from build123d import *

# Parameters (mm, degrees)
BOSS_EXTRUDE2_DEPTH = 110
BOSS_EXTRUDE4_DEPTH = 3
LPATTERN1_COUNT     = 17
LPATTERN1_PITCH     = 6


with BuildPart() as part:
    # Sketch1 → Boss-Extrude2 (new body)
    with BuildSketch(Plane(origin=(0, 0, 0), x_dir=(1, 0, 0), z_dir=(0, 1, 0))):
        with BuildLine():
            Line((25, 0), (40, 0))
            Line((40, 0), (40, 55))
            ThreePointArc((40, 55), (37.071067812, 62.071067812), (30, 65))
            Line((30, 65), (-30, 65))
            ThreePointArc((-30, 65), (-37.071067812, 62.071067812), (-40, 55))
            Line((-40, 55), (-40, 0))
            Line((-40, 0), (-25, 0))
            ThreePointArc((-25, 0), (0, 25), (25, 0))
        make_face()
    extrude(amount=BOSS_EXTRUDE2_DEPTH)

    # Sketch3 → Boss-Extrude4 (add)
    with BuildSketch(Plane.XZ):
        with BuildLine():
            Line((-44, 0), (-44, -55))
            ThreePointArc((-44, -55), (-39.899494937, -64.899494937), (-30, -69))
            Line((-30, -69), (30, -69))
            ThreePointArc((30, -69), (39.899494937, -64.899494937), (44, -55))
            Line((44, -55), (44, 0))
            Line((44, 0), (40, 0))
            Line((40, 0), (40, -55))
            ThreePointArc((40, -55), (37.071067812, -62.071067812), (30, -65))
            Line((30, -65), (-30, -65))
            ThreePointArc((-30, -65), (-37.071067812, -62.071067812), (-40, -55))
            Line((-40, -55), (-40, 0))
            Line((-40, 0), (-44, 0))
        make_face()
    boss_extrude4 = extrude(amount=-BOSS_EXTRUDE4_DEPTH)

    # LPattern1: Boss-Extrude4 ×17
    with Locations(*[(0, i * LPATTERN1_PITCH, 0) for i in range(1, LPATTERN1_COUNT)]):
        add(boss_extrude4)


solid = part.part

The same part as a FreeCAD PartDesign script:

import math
import FreeCAD as App
import Part
import Sketcher
Q = App.Units.Quantity

doc = App.newDocument("Part")
body = doc.addObject("PartDesign::Body", "Body")

# Sketch on XZ plane
sketch1 = body.newObject("Sketcher::SketchObject", "Sketch")
sketch1.AttachmentSupport = (doc.getObject("XZ_Plane"), [""])
sketch1.MapMode = "FlatFace"
sketch1.addGeometry([
    Part.LineSegment(App.Vector(25, 0, 0), App.Vector(40, 0, 0)),  # 0
    Part.LineSegment(App.Vector(40, 0, 0), App.Vector(40, -55, 0)),  # 1
    Part.ArcOfCircle(Part.Circle(App.Vector(30, -55, 0), App.Vector(0, 0, 1), 10), math.radians(-90), math.radians(0)),  # 2
    Part.LineSegment(App.Vector(30, -65, 0), App.Vector(-30, -65, 0)),  # 3
    Part.ArcOfCircle(Part.Circle(App.Vector(-30, -55, 0), App.Vector(0, 0, 1), 10), math.radians(180), math.radians(270)),  # 4
    Part.LineSegment(App.Vector(-40, -55, 0), App.Vector(-40, 0, 0)),  # 5
    Part.LineSegment(App.Vector(-40, 0, 0), App.Vector(-25, 0, 0)),  # 6
    Part.ArcOfCircle(Part.Circle(App.Vector(0, 0, 0), App.Vector(0, 0, 1), 25), math.radians(180), math.radians(360)),  # 7
], False)
sketch1.addConstraint([
    Sketcher.Constraint("Coincident", 0, 2, 1, 1),
    Sketcher.Constraint("Tangent", 1, 2, 2, 2),
    Sketcher.Constraint("Tangent", 2, 1, 3, 1),
    Sketcher.Constraint("Tangent", 3, 2, 4, 2),
    Sketcher.Constraint("Tangent", 4, 1, 5, 1),
    Sketcher.Constraint("Coincident", 5, 2, 6, 1),
    Sketcher.Constraint("Coincident", 6, 2, 7, 1),
    Sketcher.Constraint("Coincident", 7, 2, 0, 1),
    Sketcher.Constraint("Horizontal", 0),
    Sketcher.Constraint("Vertical", 1),
    Sketcher.Constraint("Horizontal", 3),
    Sketcher.Constraint("Vertical", 5),
    Sketcher.Constraint("Horizontal", 6),
    Sketcher.Constraint("Coincident", 7, 3, -1, 1),
    Sketcher.Constraint("Equal", 2, 4),
    Sketcher.Constraint("Symmetric", 0, 2, 5, 2, -1, 1),
    Sketcher.Constraint("PointOnObject", 0, 2, -1),
    Sketcher.Constraint("Radius", 2, Q("10 mm")),
    Sketcher.Constraint("Radius", 7, Q("25 mm")),
    Sketcher.Constraint("DistanceX", 0, 1, 0, 2, Q("15 mm")),
    Sketcher.Constraint("DistanceY", 1, 2, 1, 1, Q("55 mm")),
])
pad1 = body.newObject("PartDesign::Pad", "Pad")
pad1.Profile = sketch1
pad1.Length = 110
pad1.Reversed = True

# Sketch on XZ plane
sketch2 = body.newObject("Sketcher::SketchObject", "Sketch001")
sketch2.AttachmentSupport = (doc.getObject("XZ_Plane"), [""])
sketch2.MapMode = "FlatFace"
sketch2.addGeometry([
    Part.LineSegment(App.Vector(-44, 0, 0), App.Vector(-44, -55, 0)),  # 0
    Part.ArcOfCircle(Part.Circle(App.Vector(-30, -55, 0), App.Vector(0, 0, 1), 14), math.radians(180), math.radians(270)),  # 1
    Part.LineSegment(App.Vector(-30, -69, 0), App.Vector(30, -69, 0)),  # 2
    Part.ArcOfCircle(Part.Circle(App.Vector(30, -55, 0), App.Vector(0, 0, 1), 14), math.radians(-90), math.radians(0)),  # 3
    Part.LineSegment(App.Vector(44, -55, 0), App.Vector(44, 0, 0)),  # 4
    Part.LineSegment(App.Vector(44, 0, 0), App.Vector(40, 0, 0)),  # 5
    Part.LineSegment(App.Vector(40, 0, 0), App.Vector(40, -55, 0)),  # 6
    Part.ArcOfCircle(Part.Circle(App.Vector(30, -55, 0), App.Vector(0, 0, 1), 10), math.radians(-90), math.radians(0)),  # 7
    Part.LineSegment(App.Vector(30, -65, 0), App.Vector(-30, -65, 0)),  # 8
    Part.ArcOfCircle(Part.Circle(App.Vector(-30, -55, 0), App.Vector(0, 0, 1), 10), math.radians(180), math.radians(270)),  # 9
    Part.LineSegment(App.Vector(-40, -55, 0), App.Vector(-40, 0, 0)),  # 10
    Part.LineSegment(App.Vector(-40, 0, 0), App.Vector(-44, 0, 0)),  # 11
], False)
sketch2.addConstraint([
    Sketcher.Constraint("Tangent", 0, 2, 1, 1),
    Sketcher.Constraint("Tangent", 1, 2, 2, 1),
    Sketcher.Constraint("Tangent", 2, 2, 3, 1),
    Sketcher.Constraint("Tangent", 3, 2, 4, 1),
    Sketcher.Constraint("Coincident", 4, 2, 5, 1),
    Sketcher.Constraint("Coincident", 5, 2, 6, 1),
    Sketcher.Constraint("Tangent", 6, 2, 7, 2),
    Sketcher.Constraint("Tangent", 7, 1, 8, 1),
    Sketcher.Constraint("Tangent", 8, 2, 9, 2),
    Sketcher.Constraint("Tangent", 9, 1, 10, 1),
    Sketcher.Constraint("Coincident", 10, 2, 11, 1),
    Sketcher.Constraint("Coincident", 11, 2, 0, 1),
    Sketcher.Constraint("Vertical", 0),
    Sketcher.Constraint("Horizontal", 2),
    Sketcher.Constraint("Vertical", 4),
    Sketcher.Constraint("Horizontal", 5),
    Sketcher.Constraint("Vertical", 6),
    Sketcher.Constraint("Horizontal", 8),
    Sketcher.Constraint("Vertical", 10),
    Sketcher.Constraint("Horizontal", 11),
    Sketcher.Constraint("Coincident", 7, 3, 3, 3),
    Sketcher.Constraint("Coincident", 9, 3, 1, 3),
    Sketcher.Constraint("Equal", 1, 3),
    Sketcher.Constraint("Symmetric", 5, 2, 10, 2, -1, 1),
    Sketcher.Constraint("PointOnObject", 4, 2, -1),
    Sketcher.Constraint("Radius", 1, Q("14 mm")),
    Sketcher.Constraint("Radius", 7, Q("10 mm")),
    Sketcher.Constraint("DistanceX", 2, 1, 2, 2, Q("60 mm")),
    Sketcher.Constraint("DistanceY", 0, 2, 0, 1, Q("55 mm")),
])
pad2 = body.newObject("PartDesign::Pad", "Pad001")
pad2.Profile = sketch2
pad2.Length = 3
pad2.Reversed = True
doc.recompute()

linearpattern = body.newObject("PartDesign::LinearPattern", "LinearPattern")
linearpattern.Originals = [pad2]
linearpattern.Direction = (doc.getObject("Y_Axis"), [""])
linearpattern.Mode = "offset"
linearpattern.Offset = 6
linearpattern.Occurrences = 17
body.Tip = linearpattern

doc.recompute()
